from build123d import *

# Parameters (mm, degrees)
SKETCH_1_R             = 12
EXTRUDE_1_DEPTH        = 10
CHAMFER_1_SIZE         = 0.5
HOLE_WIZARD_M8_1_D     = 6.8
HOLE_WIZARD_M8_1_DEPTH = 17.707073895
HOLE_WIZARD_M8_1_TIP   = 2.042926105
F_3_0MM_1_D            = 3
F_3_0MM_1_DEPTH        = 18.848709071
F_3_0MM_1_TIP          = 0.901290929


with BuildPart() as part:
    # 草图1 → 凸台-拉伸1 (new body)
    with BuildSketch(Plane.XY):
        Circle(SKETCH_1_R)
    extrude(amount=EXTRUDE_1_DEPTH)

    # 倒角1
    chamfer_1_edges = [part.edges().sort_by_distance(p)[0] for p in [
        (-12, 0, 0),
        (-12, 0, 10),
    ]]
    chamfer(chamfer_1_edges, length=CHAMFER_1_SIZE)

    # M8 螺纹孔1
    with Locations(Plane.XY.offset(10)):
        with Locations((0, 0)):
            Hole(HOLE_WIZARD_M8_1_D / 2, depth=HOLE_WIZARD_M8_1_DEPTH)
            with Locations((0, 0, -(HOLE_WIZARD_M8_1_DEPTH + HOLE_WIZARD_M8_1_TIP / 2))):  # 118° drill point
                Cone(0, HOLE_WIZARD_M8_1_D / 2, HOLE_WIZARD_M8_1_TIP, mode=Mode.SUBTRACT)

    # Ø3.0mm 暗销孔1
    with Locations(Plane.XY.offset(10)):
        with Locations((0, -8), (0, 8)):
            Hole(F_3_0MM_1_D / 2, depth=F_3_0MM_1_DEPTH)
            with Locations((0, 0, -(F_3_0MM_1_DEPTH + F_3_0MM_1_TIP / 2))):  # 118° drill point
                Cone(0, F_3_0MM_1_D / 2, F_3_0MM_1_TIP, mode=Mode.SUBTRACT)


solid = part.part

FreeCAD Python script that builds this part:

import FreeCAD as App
import Part
import Sketcher
from FreeCAD import Vector


def edges_at(feature, points):
    """Names of the edges that pass closest to the given points."""
    edges = feature.Shape.Edges
    near = lambda p: min(range(len(edges)), key=lambda i: edges[i].distToShape(Part.Vertex(*p))[0])
    return sorted({f"Edge{near(p) + 1}" for p in points})

doc = App.newDocument("Part")
body = doc.addObject("PartDesign::Body", "Body")

sketch1 = body.newObject("Sketcher::SketchObject", "Sketch")
sketch1.AttachmentSupport = (doc.getObject("XY_Plane"), [""])
sketch1.MapMode = "FlatFace"
sketch1.addGeometry(Part.Circle(Vector(0, 0, 0), Vector(0, 0, 1), 12), False)
sketch1.addConstraint([
    Sketcher.Constraint("Coincident", 0, 3, -1, 1),
    Sketcher.Constraint("Diameter", 0, 24.0),
])
pad1 = body.newObject("PartDesign::Pad", "Pad")
pad1.Profile = sketch1
pad1.Length = 10
doc.recompute()

chamfer = body.newObject("PartDesign::Chamfer", "Chamfer")
chamfer.Base = (pad1, edges_at(pad1, [(-12, 0, 0), (-12, 0, 10)]))
chamfer.Size = 0.5

sketch2 = body.newObject("Sketcher::SketchObject", "Sketch001")
sketch2.AttachmentSupport = (doc.getObject("XY_Plane"), [""])
sketch2.MapMode = "FlatFace"
sketch2.AttachmentOffset = App.Placement(Vector(0, 0, 10), App.Rotation())
sketch2.addGeometry(Part.Circle(Vector(0, 0, 0), Vector(0, 0, 1), 3.4), False)
sketch2.addConstraint([
    Sketcher.Constraint("Coincident", 0, 3, -1, 1),
    Sketcher.Constraint("Diameter", 0, 6.8),
])
doc.recompute()
hole = body.newObject("PartDesign::Hole", "Hole")
hole.Profile = sketch2
hole.ThreadType = "None"
hole.Diameter = 6.8
hole.DepthType = "Dimension"
hole.Depth = 17.707074
hole.DrillPoint = "Angled"
hole.DrillPointAngle = 118

sketch3 = body.newObject("Sketcher::SketchObject", "Sketch002")
sketch3.AttachmentSupport = (doc.getObject("XY_Plane"), [""])
sketch3.MapMode = "FlatFace"
sketch3.AttachmentOffset = App.Placement(Vector(0, 0, 10), App.Rotation())
sketch3.addGeometry([
    Part.Circle(Vector(0, -8, 0), Vector(0, 0, 1), 1.5),
    Part.Circle(Vector(0, 8, 0), Vector(0, 0, 1), 1.5),
], False)
sketch3.addConstraint([
    Sketcher.Constraint("Equal", 0, 1),
    Sketcher.Constraint("Symmetric", 0, 3, 1, 3, -1, 1),
    Sketcher.Constraint("PointOnObject", 0, 3, -2),
    Sketcher.Constraint("Diameter", 0, 3.0),
    Sketcher.Constraint("DistanceY", 0, 3, -1, 1, 8.0),
])
doc.recompute()
hole2 = body.newObject("PartDesign::Hole", "Hole001")
hole2.Profile = sketch3
hole2.ThreadType = "None"
hole2.Diameter = 3
hole2.DepthType = "Dimension"
hole2.Depth = 18.848709
hole2.DrillPoint = "Angled"
hole2.DrillPointAngle = 118

doc.recompute()
